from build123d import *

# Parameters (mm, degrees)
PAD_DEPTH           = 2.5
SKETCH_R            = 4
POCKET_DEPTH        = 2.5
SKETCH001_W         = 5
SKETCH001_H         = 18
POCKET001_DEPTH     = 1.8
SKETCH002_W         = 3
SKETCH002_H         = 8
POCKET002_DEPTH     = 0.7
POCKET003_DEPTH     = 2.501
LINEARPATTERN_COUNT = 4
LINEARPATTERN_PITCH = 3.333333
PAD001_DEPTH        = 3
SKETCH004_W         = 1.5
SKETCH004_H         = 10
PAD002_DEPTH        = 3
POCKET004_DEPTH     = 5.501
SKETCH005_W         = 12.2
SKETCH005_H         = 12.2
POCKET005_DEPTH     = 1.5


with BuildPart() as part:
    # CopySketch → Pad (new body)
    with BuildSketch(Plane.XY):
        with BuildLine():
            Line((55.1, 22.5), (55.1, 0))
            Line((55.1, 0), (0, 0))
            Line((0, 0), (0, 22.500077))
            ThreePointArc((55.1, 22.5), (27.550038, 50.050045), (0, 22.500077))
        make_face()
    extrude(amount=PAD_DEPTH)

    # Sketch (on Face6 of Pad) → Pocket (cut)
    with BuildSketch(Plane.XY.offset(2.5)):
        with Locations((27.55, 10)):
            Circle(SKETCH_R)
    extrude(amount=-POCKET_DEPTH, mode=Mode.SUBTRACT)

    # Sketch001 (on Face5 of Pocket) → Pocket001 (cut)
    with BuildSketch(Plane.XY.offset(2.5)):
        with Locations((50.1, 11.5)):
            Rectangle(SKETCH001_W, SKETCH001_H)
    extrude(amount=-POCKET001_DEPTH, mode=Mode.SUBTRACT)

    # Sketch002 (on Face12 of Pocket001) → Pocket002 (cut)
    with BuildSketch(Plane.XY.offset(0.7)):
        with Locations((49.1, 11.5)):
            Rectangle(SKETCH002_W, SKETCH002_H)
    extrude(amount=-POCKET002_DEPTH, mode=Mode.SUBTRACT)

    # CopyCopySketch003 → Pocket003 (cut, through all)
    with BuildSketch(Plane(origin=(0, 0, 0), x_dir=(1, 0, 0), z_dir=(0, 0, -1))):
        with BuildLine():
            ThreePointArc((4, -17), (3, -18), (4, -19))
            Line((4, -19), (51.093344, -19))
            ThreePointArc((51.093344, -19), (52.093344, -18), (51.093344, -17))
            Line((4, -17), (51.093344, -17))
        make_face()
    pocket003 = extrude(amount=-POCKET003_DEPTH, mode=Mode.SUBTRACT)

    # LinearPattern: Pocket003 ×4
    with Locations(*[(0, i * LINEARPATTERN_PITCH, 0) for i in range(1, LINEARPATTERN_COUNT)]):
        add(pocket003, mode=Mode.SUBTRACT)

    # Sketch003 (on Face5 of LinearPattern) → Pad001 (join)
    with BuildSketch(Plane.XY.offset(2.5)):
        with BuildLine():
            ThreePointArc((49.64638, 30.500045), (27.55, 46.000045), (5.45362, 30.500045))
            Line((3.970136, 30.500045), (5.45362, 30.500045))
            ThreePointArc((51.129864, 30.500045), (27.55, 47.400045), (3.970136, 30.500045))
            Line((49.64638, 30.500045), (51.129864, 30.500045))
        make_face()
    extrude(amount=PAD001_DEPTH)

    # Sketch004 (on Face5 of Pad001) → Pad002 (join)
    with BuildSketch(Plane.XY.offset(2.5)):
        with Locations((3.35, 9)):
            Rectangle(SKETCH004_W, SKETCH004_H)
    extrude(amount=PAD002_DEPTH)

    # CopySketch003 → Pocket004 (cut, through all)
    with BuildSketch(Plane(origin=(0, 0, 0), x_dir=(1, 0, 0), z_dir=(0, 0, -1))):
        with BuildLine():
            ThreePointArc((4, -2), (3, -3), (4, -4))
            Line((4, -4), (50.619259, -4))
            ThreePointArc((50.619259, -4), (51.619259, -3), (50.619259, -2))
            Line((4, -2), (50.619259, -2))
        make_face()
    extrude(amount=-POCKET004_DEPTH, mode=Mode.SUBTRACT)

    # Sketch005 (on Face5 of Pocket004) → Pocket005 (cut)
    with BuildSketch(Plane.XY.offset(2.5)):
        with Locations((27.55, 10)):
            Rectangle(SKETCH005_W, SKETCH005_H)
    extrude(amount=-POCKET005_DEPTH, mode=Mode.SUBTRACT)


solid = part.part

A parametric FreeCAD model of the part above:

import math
import FreeCAD as App
import Part
import Sketcher

V = App.Vector


def add_polygon(sketch, points):
    """Adds a closed chain of lines whose ends are joined by coincident constraints."""
    first, n = sketch.GeometryCount, len(points)
    for a, b in zip(points, points[1:] + points[:1]):
        sketch.addGeometry(Part.LineSegment(App.Vector(*a, 0), App.Vector(*b, 0)), False)
    for i in range(n):
        sketch.addConstraint(Sketcher.Constraint("Coincident", first + i, 2, first + (i + 1) % n, 1))

doc = App.newDocument("Part")
params = doc.addObject("Spreadsheet::Sheet", "Params")
for row, (alias, value) in enumerate([
    ("sketch1_radius", "27.55 mm"),
    ("sketch1_height", "22.5 mm"),
    ("pad1_length", "2.5 mm"),
    ("sketch2_diameter", "8 mm"),
    ("pocket1_length", "2.5 mm"),
    ("sketch3_width", "5 mm"),
    ("sketch3_height", "18 mm"),
    ("pocket2_length", "1.8 mm"),
    ("sketch4_width", "3 mm"),
    ("sketch4_height", "8 mm"),
    ("pocket3_length", "0.7 mm"),
    ("sketch5_radius", "1 mm"),
    ("linearpattern_pitch", "3.333333 mm"),
    ("sketch6_radius", "23.5 mm"),
    ("sketch6_radius2", "24.9 mm"),
    ("pad2_length", "3 mm"),
    ("sketch7_height", "10 mm"),
    ("sketch7_width", "1.5 mm"),
    ("pad3_length", "3 mm"),
    ("sketch8_radius", "1 mm"),
    ("sketch9_width", "12.2 mm"),
    ("pocket6_length", "1.5 mm"),
], start=1):
    params.set(f"A{row}", alias)
    params.set(f"B{row}", "=" + value)
    params.setAlias(f"B{row}", alias)

body = doc.addObject("PartDesign::Body", "Body")

sketch1 = body.newObject("Sketcher::SketchObject", "Sketch")
sketch1.AttachmentSupport = (doc.getObject("XY_Plane"), [""])
sketch1.MapMode = "FlatFace"
sketch1.addGeometry([
    Part.LineSegment(V(55.1, 0, 0), V(55.1, 22.5, 0)),
    Part.ArcOfCircle(Part.Circle(V(27.55, 22.500045, 0), V(0, 0, 1), 27.55), math.radians(-0.000094), math.radians(179.999933)),
    Part.LineSegment(V(0, 22.500077, 0), V(0, 0, 0)),
    Part.LineSegment(V(0, 0, 0), V(55.1, 0, 0)),
], False)
sketch1.addConstraint([
    Sketcher.Constraint("Coincident", 0, 2, 1, 1),
    Sketcher.Constraint("Coincident", 1, 2, 2, 1),
    Sketcher.Constraint("Coincident", 2, 2, 3, 1),
    Sketcher.Constraint("Coincident", 3, 2, 0, 1),
    Sketcher.Constraint("Vertical", 0),
    Sketcher.Constraint("Vertical", 2),
    Sketcher.Constraint("Horizontal", 3),
    Sketcher.Constraint("Coincident", 2, 2, -1, 1),
    Sketcher.Constraint("Radius", 1, 27.55),
    Sketcher.Constraint("DistanceY", 0, 1, 0, 2, 22.5),
    Sketcher.Constraint("DistanceY", 2, 2, 2, 1, 22.500077),
    Sketcher.Constraint("DistanceY", -1, 1, 1, 3, 22.500045),
])
sketch1.setExpression("Constraints[8]", "Params.sketch1_radius")
sketch1.setExpression("Constraints[9]", "Params.sketch1_height")
pad1 = body.newObject("PartDesign::Pad", "Pad")
pad1.Profile = sketch1
pad1.setExpression("Length", "Params.pad1_length")

sketch2 = body.newObject("Sketcher::SketchObject", "Sketch001")
sketch2.AttachmentSupport = (doc.getObject("XY_Plane"), [""])
sketch2.MapMode = "FlatFace"
sketch2.AttachmentOffset = App.Placement(V(0, 0, 2.5), App.Rotation())
sketch2.addGeometry(Part.Circle(V(27.55, 10, 0), V(0, 0, 1), 4), False)
sketch2.addConstraint([
    Sketcher.Constraint("Diameter", 0, 8.0),
    Sketcher.Constraint("DistanceY", -1, 1, 0, 3, 10.0),
    Sketcher.Constraint("DistanceX", -1, 1, 0, 3, 27.55),
])
sketch2.setExpression("Constraints[0]", "Params.sketch2_diameter")
pocket1 = body.newObject("PartDesign::Pocket", "Pocket")
pocket1.Profile = sketch2
pocket1.setExpression("Length", "Params.pocket1_length")

sketch3 = body.newObject("Sketcher::SketchObject", "Sketch002")
sketch3.AttachmentSupport = (doc.getObject("XY_Plane"), [""])
sketch3.MapMode = "FlatFace"
sketch3.AttachmentOffset = App.Placement(V(0, 0, 2.5), App.Rotation())
add_polygon(sketch3, [(47.6, 20.5), (47.6, 2.5), (52.6, 2.5), (52.6, 20.5)])
sketch3.addConstraint([
    Sketcher.Constraint("Vertical", 0),
    Sketcher.Constraint("Horizontal", 1),
    Sketcher.Constraint("Vertical", 2),
    Sketcher.Constraint("Horizontal", 3),
    Sketcher.Constraint("DistanceX", 1, 1, 1, 2, 5.0),
    Sketcher.Constraint("DistanceY", 0, 2, 0, 1, 18.0),
    Sketcher.Constraint("DistanceX", -1, 1, 0, 2, 47.6),
    Sketcher.Constraint("DistanceY", -1, 1, 0, 2, 2.5),
])
sketch3.setExpression("Constraints[8]", "Params.sketch3_width")
sketch3.setExpression("Constraints[9]", "Params.sketch3_height")
pocket2 = body.newObject("PartDesign::Pocket", "Pocket001")
pocket2.Profile = sketch3
pocket2.setExpression("Length", "Params.pocket2_length")

sketch4 = body.newObject("Sketcher::SketchObject", "Sketch003")
sketch4.AttachmentSupport = (doc.getObject("XY_Plane"), [""])
sketch4.MapMode = "FlatFace"
sketch4.AttachmentOffset = App.Placement(V(0, 0, 0.7), App.Rotation())
add_polygon(sketch4, [(47.6, 15.5), (47.6, 7.5), (50.6, 7.5), (50.6, 15.5)])
sketch4.addConstraint([
    Sketcher.Constraint("Vertical", 0),
    Sketcher.Constraint("Horizontal", 1),
    Sketcher.Constraint("Vertical", 2),
    Sketcher.Constraint("Horizontal", 3),
    Sketcher.Constraint("DistanceX", 1, 1, 1, 2, 3.0),
    Sketcher.Constraint("DistanceY", 0, 2, 0, 1, 8.0),
    Sketcher.Constraint("DistanceX", -1, 1, 0, 2, 47.6),
    Sketcher.Constraint("DistanceY", -1, 1, 0, 2, 7.5),
])
sketch4.setExpression("Constraints[8]", "Params.sketch4_width")
sketch4.setExpression("Constraints[9]", "Params.sketch4_height")
pocket3 = body.newObject("PartDesign::Pocket", "Pocket002")
pocket3.Profile = sketch4
pocket3.setExpression("Length", "Params.pocket3_length")

sketch5 = body.newObject("Sketcher::SketchObject", "Sketch004")
sketch5.AttachmentSupport = (doc.getObject("XY_Plane"), [""])
sketch5.MapMode = "FlatFace"
sketch5.addGeometry([
    Part.ArcOfCircle(Part.Circle(V(4, 18, 0), V(0, 0, 1), 1), math.radians(90), math.radians(270)),
    Part.LineSegment(V(4, 19, 0), V(51.093344, 19, 0)),
    Part.ArcOfCircle(Part.Circle(V(51.093344, 18, 0), V(0, 0, 1), 1), math.radians(-90), math.radians(90)),
    Part.LineSegment(V(51.093344, 17, 0), V(4, 17, 0)),
], False)
sketch5.addConstraint([
    Sketcher.Constraint("Tangent", 0, 1, 1, 1),
    Sketcher.Constraint("Tangent", 1, 2, 2, 2),
    Sketcher.Constraint("Tangent", 2, 1, 3, 1),
    Sketcher.Constraint("Tangent", 3, 2, 0, 2),
    Sketcher.Constraint("Horizontal", 1),
    Sketcher.Constraint("Horizontal", 3),
    Sketcher.Constraint("Radius", 0, 1.0),
    Sketcher.Constraint("DistanceX", -1, 1, 0, 3, 4.0),
    Sketcher.Constraint("DistanceY", -1, 1, 0, 3, 18.0),
    Sketcher.Constraint("DistanceX", 1, 1, 1, 2, 47.093344),
])
sketch5.setExpression("Constraints[6]", "Params.sketch5_radius")
pocket4 = body.newObject("PartDesign::Pocket", "Pocket003")
pocket4.Profile = sketch5
pocket4.Type = "ThroughAll"
pocket4.Reversed = True
doc.recompute()

linearpattern = body.newObject("PartDesign::LinearPattern", "LinearPattern")
linearpattern.Originals = [pocket4]
linearpattern.Direction = (doc.getObject("Y_Axis"), [""])
linearpattern.Mode = "offset"
linearpattern.setExpression("Offset", "Params.linearpattern_pitch")
linearpattern.Occurrences = 4
body.Tip = linearpattern

sketch6 = body.newObject("Sketcher::SketchObject", "Sketch005")
sketch6.AttachmentSupport = (doc.getObject("XY_Plane"), [""])
sketch6.MapMode = "FlatFace"
sketch6.AttachmentOffset = App.Placement(V(0, 0, 2.5), App.Rotation())
sketch6.addGeometry([
    Part.ArcOfCircle(Part.Circle(V(27.55, 22.500045, 0), V(0, 0, 1), 23.5), math.radians(19.902802), math.radians(160.097198)),
    Part.LineSegment(V(49.64638, 30.500045, 0), V(51.129864, 30.500045, 0)),
    Part.ArcOfCircle(Part.Circle(V(27.55, 22.500045, 0), V(0, 0, 1), 24.9), math.radians(18.740662), math.radians(161.259338)),
    Part.LineSegment(V(3.970136, 30.500045, 0), V(5.45362, 30.500045, 0)),
], False)
sketch6.addConstraint([
    Sketcher.Constraint("Coincident", 0, 1, 1, 1),
    Sketcher.Constraint("Coincident", 1, 2, 2, 1),
    Sketcher.Constraint("Coincident", 2, 2, 3, 1),
    Sketcher.Constraint("Coincident", 3, 2, 0, 2),
    Sketcher.Constraint("Horizontal", 1),
    Sketcher.Constraint("Horizontal", 3),
    Sketcher.Constraint("Coincident", 2, 3, 0, 3),
    Sketcher.Constraint("Horizontal", 1, 2, 2, 2),
    Sketcher.Constraint("Radius", 0, 23.5),
    Sketcher.Constraint("Radius", 2, 24.9),
    Sketcher.Constraint("DistanceY", 2, 3, 0, 1, 8.0),
    Sketcher.Constraint("DistanceX", -1, 1, 0, 3, 27.55),
    Sketcher.Constraint("DistanceY", -1, 1, 0, 3, 22.500045),
])
sketch6.setExpression("Constraints[8]", "Params.sketch6_radius")
sketch6.setExpression("Constraints[9]", "Params.sketch6_radius2")
pad2 = body.newObject("PartDesign::Pad", "Pad001")
pad2.Profile = sketch6
pad2.setExpression("Length", "Params.pad2_length")

sketch7 = body.newObject("Sketcher::SketchObject", "Sketch006")
sketch7.AttachmentSupport = (doc.getObject("XY_Plane"), [""])
sketch7.MapMode = "FlatFace"
sketch7.AttachmentOffset = App.Placement(V(0, 0, 2.5), App.Rotation())
add_polygon(sketch7, [(2.6, 14), (2.6, 4), (4.1, 4), (4.1, 14)])
sketch7.addConstraint([
    Sketcher.Constraint("Vertical", 0),
    Sketcher.Constraint("Horizontal", 1),
    Sketcher.Constraint("Vertical", 2),
    Sketcher.Constraint("Horizontal", 3),
    Sketcher.Constraint("DistanceY", 0, 2, 0, 1, 10.0),
    Sketcher.Constraint("DistanceX", 1, 1, 1, 2, 1.5),
    Sketcher.Constraint("DistanceY", -1, 1, 0, 2, 4.0),
    Sketcher.Constraint("DistanceX", -1, 1, 0, 2, 2.6),
])
sketch7.setExpression("Constraints[8]", "Params.sketch7_height")
sketch7.setExpression("Constraints[9]", "Params.sketch7_width")
pad3 = body.newObject("PartDesign::Pad", "Pad002")
pad3.Profile = sketch7
pad3.setExpression("Length", "Params.pad3_length")

sketch8 = body.newObject("Sketcher::SketchObject", "Sketch007")
sketch8.AttachmentSupport = (doc.getObject("XY_Plane"), [""])
sketch8.MapMode = "FlatFace"
sketch8.addGeometry([
    Part.ArcOfCircle(Part.Circle(V(4, 3, 0), V(0, 0, 1), 1), math.radians(90), math.radians(270)),
    Part.LineSegment(V(4, 4, 0), V(50.619259, 4, 0)),
    Part.ArcOfCircle(Part.Circle(V(50.619259, 3, 0), V(0, 0, 1), 1), math.radians(-90), math.radians(90)),
    Part.LineSegment(V(50.619259, 2, 0), V(4, 2, 0)),
], False)
sketch8.addConstraint([
    Sketcher.Constraint("Tangent", 0, 1, 1, 1),
    Sketcher.Constraint("Tangent", 1, 2, 2, 2),
    Sketcher.Constraint("Tangent", 2, 1, 3, 1),
    Sketcher.Constraint("Tangent", 3, 2, 0, 2),
    Sketcher.Constraint("Horizontal", 1),
    Sketcher.Constraint("Horizontal", 3),
    Sketcher.Constraint("Radius", 0, 1.0),
    Sketcher.Constraint("DistanceX", -1, 1, 0, 3, 4.0),
    Sketcher.Constraint("DistanceY", -1, 1, 0, 3, 3.0),
    Sketcher.Constraint("DistanceX", 1, 1, 1, 2, 46.619259),
])
sketch8.setExpression("Constraints[6]", "Params.sketch8_radius")
pocket5 = body.newObject("PartDesign::Pocket", "Pocket004")
pocket5.Profile = sketch8
pocket5.Type = "ThroughAll"
pocket5.Reversed = True

sketch9 = body.newObject("Sketcher::SketchObject", "Sketch008")
sketch9.AttachmentSupport = (doc.getObject("XY_Plane"), [""])
sketch9.MapMode = "FlatFace"
sketch9.AttachmentOffset = App.Placement(V(0, 0, 2.5), App.Rotation())
add_polygon(sketch9, [(21.45, 16.1), (21.45, 3.9), (33.65, 3.9), (33.65, 16.1)])
sketch9.addConstraint([
    Sketcher.Constraint("Vertical", 0),
    Sketcher.Constraint("Horizontal", 1),
    Sketcher.Constraint("Vertical", 2),
    Sketcher.Constraint("Horizontal", 3),
    Sketcher.Constraint("Equal", 3, 0),
    Sketcher.Constraint("DistanceX", 1, 1, 1, 2, 12.2),
    Sketcher.Constraint("DistanceY", -1, 1, 0, 2, 3.9),
    Sketcher.Constraint("DistanceX", -1, 1, 0, 2, 21.45),
])
sketch9.setExpression("Constraints[9]", "Params.sketch9_width")
pocket6 = body.newObject("PartDesign::Pocket", "Pocket005")
pocket6.Profile = sketch9
pocket6.setExpression("Length", "Params.pocket6_length")

doc.recompute()
